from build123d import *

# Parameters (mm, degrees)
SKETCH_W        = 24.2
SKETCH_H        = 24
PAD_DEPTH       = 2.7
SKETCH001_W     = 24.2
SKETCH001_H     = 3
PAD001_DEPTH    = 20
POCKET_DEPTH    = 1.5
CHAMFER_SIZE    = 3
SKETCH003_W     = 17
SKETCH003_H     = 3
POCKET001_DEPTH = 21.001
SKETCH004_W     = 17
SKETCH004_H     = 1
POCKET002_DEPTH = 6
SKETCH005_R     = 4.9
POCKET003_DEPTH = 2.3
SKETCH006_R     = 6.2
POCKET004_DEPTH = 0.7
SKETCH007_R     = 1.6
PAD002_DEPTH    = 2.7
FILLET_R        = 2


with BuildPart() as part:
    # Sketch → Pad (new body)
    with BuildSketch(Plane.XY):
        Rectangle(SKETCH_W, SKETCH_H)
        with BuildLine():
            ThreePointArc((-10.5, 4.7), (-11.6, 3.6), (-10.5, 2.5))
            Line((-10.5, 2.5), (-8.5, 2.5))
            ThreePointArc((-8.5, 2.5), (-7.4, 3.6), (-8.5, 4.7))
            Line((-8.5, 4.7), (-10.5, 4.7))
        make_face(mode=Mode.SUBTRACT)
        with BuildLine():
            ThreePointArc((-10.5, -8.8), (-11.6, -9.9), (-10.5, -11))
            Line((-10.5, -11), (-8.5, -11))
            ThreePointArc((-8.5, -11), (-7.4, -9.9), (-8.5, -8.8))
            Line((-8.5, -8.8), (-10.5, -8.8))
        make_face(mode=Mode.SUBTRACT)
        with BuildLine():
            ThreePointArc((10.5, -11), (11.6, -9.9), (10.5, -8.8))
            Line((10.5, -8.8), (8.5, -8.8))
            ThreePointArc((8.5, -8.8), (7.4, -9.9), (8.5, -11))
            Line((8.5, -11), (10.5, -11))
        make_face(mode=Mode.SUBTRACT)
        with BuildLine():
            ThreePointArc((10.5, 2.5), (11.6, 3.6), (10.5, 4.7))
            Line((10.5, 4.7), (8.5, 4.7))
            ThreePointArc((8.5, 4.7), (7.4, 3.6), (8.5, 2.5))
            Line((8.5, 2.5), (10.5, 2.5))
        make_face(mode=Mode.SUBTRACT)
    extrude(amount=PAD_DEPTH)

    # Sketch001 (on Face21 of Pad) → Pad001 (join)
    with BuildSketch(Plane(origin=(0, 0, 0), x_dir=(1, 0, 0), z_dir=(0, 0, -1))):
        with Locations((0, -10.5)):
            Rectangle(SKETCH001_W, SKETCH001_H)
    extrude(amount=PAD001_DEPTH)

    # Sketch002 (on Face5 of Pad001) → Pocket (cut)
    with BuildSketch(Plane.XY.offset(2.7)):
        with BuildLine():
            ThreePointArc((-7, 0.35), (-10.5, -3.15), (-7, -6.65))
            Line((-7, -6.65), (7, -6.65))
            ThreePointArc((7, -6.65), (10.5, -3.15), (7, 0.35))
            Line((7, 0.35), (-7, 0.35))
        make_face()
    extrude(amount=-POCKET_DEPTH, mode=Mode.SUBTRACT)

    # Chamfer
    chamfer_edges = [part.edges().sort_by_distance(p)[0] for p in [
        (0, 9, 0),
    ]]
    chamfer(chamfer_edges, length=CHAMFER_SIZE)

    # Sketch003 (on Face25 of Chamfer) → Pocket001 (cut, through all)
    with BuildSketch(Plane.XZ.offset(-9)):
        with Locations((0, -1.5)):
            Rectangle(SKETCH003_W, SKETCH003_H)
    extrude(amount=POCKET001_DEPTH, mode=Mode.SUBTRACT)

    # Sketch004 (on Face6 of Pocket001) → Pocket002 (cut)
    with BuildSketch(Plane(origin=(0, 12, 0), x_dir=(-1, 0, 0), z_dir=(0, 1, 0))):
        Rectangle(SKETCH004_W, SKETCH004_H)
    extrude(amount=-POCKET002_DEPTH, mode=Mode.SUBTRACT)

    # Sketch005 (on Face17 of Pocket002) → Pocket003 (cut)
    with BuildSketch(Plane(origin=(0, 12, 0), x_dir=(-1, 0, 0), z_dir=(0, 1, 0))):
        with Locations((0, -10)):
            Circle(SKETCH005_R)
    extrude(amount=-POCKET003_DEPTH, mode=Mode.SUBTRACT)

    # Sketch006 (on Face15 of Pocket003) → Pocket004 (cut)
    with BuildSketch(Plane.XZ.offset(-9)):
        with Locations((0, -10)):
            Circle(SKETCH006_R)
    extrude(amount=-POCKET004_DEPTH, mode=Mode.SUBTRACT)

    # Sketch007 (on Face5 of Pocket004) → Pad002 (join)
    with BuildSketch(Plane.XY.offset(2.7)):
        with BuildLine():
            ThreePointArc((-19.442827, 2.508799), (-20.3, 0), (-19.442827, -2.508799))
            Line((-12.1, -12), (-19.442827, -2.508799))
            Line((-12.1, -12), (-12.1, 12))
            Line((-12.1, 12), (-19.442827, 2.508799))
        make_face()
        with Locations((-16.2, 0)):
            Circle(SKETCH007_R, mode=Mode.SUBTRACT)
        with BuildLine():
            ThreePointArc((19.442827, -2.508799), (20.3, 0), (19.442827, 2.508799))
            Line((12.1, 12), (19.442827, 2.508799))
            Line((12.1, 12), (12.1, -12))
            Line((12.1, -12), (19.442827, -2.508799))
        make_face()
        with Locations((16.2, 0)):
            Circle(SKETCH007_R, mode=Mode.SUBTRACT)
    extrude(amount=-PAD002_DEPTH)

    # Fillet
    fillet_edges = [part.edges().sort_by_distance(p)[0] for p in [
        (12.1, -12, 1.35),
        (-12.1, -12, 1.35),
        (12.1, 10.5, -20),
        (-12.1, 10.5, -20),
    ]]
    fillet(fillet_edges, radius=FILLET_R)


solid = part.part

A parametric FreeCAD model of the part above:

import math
import FreeCAD as App
import Part
import Sketcher

V = App.Vector
Q = App.Units.Quantity


def edges_at(feature, points):
    """Names of the edges that pass closest to the given points."""
    edges = feature.Shape.Edges
    near = lambda p: min(range(len(edges)), key=lambda i: edges[i].distToShape(Part.Vertex(*p))[0])
    return sorted({f"Edge{near(p) + 1}" for p in points})

doc = App.newDocument("Part")
body = doc.addObject("PartDesign::Body", "Body")

# Sketch on XY plane
sketch1 = body.newObject("Sketcher::SketchObject", "Sketch")
sketch1.AttachmentSupport = (doc.getObject("XY_Plane"), [""])
sketch1.MapMode = "FlatFace"
sketch1.addGeometry([
    Part.LineSegment(V(-12.1, 12, 0), V(-12.1, -12, 0)),  # 0
    Part.LineSegment(V(-12.1, -12, 0), V(12.1, -12, 0)),  # 1
    Part.LineSegment(V(12.1, -12, 0), V(12.1, 12, 0)),  # 2
    Part.LineSegment(V(12.1, 12, 0), V(-12.1, 12, 0)),  # 3
    Part.ArcOfCircle(Part.Circle(V(-10.5, -9.9, 0), V(0, 0, 1), 1.1), math.radians(90), math.radians(270)),  # 4
    Part.LineSegment(V(-10.5, -8.8, 0), V(-8.5, -8.8, 0)),  # 5
    Part.ArcOfCircle(Part.Circle(V(-8.5, -9.9, 0), V(0, 0, 1), 1.1), math.radians(-90), math.radians(90)),  # 6
    Part.LineSegment(V(-8.5, -11, 0), V(-10.5, -11, 0)),  # 7
    Part.ArcOfCircle(Part.Circle(V(10.5, -9.9, 0), V(0, 0, 1), 1.1), math.radians(-90), math.radians(90)),  # 8
    Part.LineSegment(V(10.5, -11, 0), V(8.5, -11, 0)),  # 9
    Part.ArcOfCircle(Part.Circle(V(8.5, -9.9, 0), V(0, 0, 1), 1.1), math.radians(90), math.radians(270)),  # 10
    Part.LineSegment(V(8.5, -8.8, 0), V(10.5, -8.8, 0)),  # 11
    Part.ArcOfCircle(Part.Circle(V(-10.5, 3.6, 0), V(0, 0, 1), 1.1), math.radians(90), math.radians(270)),  # 12
    Part.LineSegment(V(-10.5, 4.7, 0), V(-8.5, 4.7, 0)),  # 13
    Part.ArcOfCircle(Part.Circle(V(-8.5, 3.6, 0), V(0, 0, 1), 1.1), math.radians(-90), math.radians(90)),  # 14
    Part.LineSegment(V(-8.5, 2.5, 0), V(-10.5, 2.5, 0)),  # 15
    Part.ArcOfCircle(Part.Circle(V(10.5, 3.6, 0), V(0, 0, 1), 1.1), math.radians(-90), math.radians(90)),  # 16
    Part.LineSegment(V(10.5, 2.5, 0), V(8.5, 2.5, 0)),  # 17
    Part.ArcOfCircle(Part.Circle(V(8.5, 3.6, 0), V(0, 0, 1), 1.1), math.radians(90), math.radians(270)),  # 18
    Part.LineSegment(V(8.5, 4.7, 0), V(10.5, 4.7, 0)),  # 19
], False)
sketch1.addConstraint([
    Sketcher.Constraint("Coincident", 0, 2, 1, 1),
    Sketcher.Constraint("Coincident", 1, 2, 2, 1),
    Sketcher.Constraint("Coincident", 2, 2, 3, 1),
    Sketcher.Constraint("Coincident", 3, 2, 0, 1),
    Sketcher.Constraint("Tangent", 4, 1, 5, 1),
    Sketcher.Constraint("Tangent", 5, 2, 6, 2),
    Sketcher.Constraint("Tangent", 6, 1, 7, 1),
    Sketcher.Constraint("Tangent", 7, 2, 4, 2),
    Sketcher.Constraint("Tangent", 8, 1, 9, 1),
    Sketcher.Constraint("Tangent", 9, 2, 10, 2),
    Sketcher.Constraint("Tangent", 10, 1, 11, 1),
    Sketcher.Constraint("Tangent", 11, 2, 8, 2),
    Sketcher.Constraint("Tangent", 12, 1, 13, 1),
    Sketcher.Constraint("Tangent", 13, 2, 14, 2),
    Sketcher.Constraint("Tangent", 14, 1, 15, 1),
    Sketcher.Constraint("Tangent", 15, 2, 12, 2),
    Sketcher.Constraint("Tangent", 16, 1, 17, 1),
    Sketcher.Constraint("Tangent", 17, 2, 18, 2),
    Sketcher.Constraint("Tangent", 18, 1, 19, 1),
    Sketcher.Constraint("Tangent", 19, 2, 16, 2),
    Sketcher.Constraint("Vertical", 0),
    Sketcher.Constraint("Horizontal", 1),
    Sketcher.Constraint("Vertical", 2),
    Sketcher.Constraint("Horizontal", 3),
    Sketcher.Constraint("Horizontal", 5),
    Sketcher.Constraint("Horizontal", 7),
    Sketcher.Constraint("Horizontal", 9),
    Sketcher.Constraint("Horizontal", 11),
    Sketcher.Constraint("Horizontal", 13),
    Sketcher.Constraint("Horizontal", 15),
    Sketcher.Constraint("Horizontal", 17),
    Sketcher.Constraint("Horizontal", 19),
    Sketcher.Constraint("Equal", 6, 8),
    Sketcher.Constraint("Equal", 10, 12),
    Sketcher.Constraint("Equal", 14, 16),
    Sketcher.Constraint("Symmetric", 0, 2, 2, 2, -1, 1),
    Sketcher.Constraint("Symmetric", 4, 3, 8, 3, -2),
    Sketcher.Constraint("Symmetric", 12, 3, 16, 3, -2),
    Sketcher.Constraint("Vertical", 4, 3, 12, 3),
    Sketcher.Constraint("Vertical", 6, 3, 14, 3),
    Sketcher.Constraint("Vertical", 10, 3, 18, 3),
    Sketcher.Constraint("Equal", 7, 9),
    Sketcher.Constraint("Radius", 4, Q("1.1 mm")),
    Sketcher.Constraint("DistanceX", 5, 1, 5, 2, Q("2 mm")),
    Sketcher.Constraint("DistanceY", 0, 2, 0, 1, Q("24 mm")),
    Sketcher.Constraint("DistanceX", 1, 1, 1, 2, Q("24.2 mm")),
    Sketcher.Constraint("DistanceY", 6, 1, -1, 1, Q("11 mm")),
    Sketcher.Constraint("DistanceX", 6, 3, 8, 3, Q("19 mm")),
    Sketcher.Constraint("DistanceY", -1, 1, 12, 3, Q("3.6 mm")),
])
pad1 = body.newObject("PartDesign::Pad", "Pad")
pad1.Profile = sketch1
pad1.Length = 2.7

# Sketch on XY plane
sketch2 = body.newObject("Sketcher::SketchObject", "Sketch001")
sketch2.AttachmentSupport = (doc.getObject("XY_Plane"), [""])
sketch2.MapMode = "FlatFace"
sketch2.addGeometry([
    Part.LineSegment(V(-12.1, 9, 0), V(-12.1, 12, 0)),
    Part.LineSegment(V(-12.1, 12, 0), V(12.1, 12, 0)),
    Part.LineSegment(V(12.1, 12, 0), V(12.1, 9, 0)),
    Part.LineSegment(V(12.1, 9, 0), V(-12.1, 9, 0)),
], False)
sketch2.addConstraint([
    Sketcher.Constraint("Coincident", 0, 2, 1, 1),
    Sketcher.Constraint("Coincident", 1, 2, 2, 1),
    Sketcher.Constraint("Coincident", 2, 2, 3, 1),
    Sketcher.Constraint("Coincident", 3, 2, 0, 1),
    Sketcher.Constraint("Vertical", 0),
    Sketcher.Constraint("Horizontal", 1),
    Sketcher.Constraint("Vertical", 2),
    Sketcher.Constraint("Horizontal", 3),
    Sketcher.Constraint("DistanceY", 0, 1, 0, 2, Q("3 mm")),
    Sketcher.Constraint("DistanceX", 1, 1, 1, 2, Q("24.2 mm")),
    Sketcher.Constraint("DistanceY", -1, 1, 0, 2, Q("12 mm")),
    Sketcher.Constraint("DistanceX", 0, 2, -1, 1, Q("12.1 mm")),
])
pad2 = body.newObject("PartDesign::Pad", "Pad001")
pad2.Profile = sketch2
pad2.Length = 20
pad2.Reversed = True

# Sketch on XY plane
sketch3 = body.newObject("Sketcher::SketchObject", "Sketch002")
sketch3.AttachmentSupport = (doc.getObject("XY_Plane"), [""])
sketch3.MapMode = "FlatFace"
sketch3.AttachmentOffset = App.Placement(V(0, 0, 2.7), App.Rotation())
sketch3.addGeometry([
    Part.ArcOfCircle(Part.Circle(V(-7, -3.1, 0), V(0, 0, 1), 3.5), math.radians(90), math.radians(270)),
    Part.LineSegment(V(-7, -6.7, 0), V(7, -6.7, 0)),
    Part.ArcOfCircle(Part.Circle(V(7, -3.1, 0), V(0, 0, 1), 3.5), math.radians(-90), math.radians(90)),
    Part.LineSegment(V(7, 0.3, 0), V(-7, 0.3, 0)),
], False)
sketch3.addConstraint([
    Sketcher.Constraint("Tangent", 0, 2, 1, 1),
    Sketcher.Constraint("Tangent", 1, 2, 2, 1),
    Sketcher.Constraint("Tangent", 2, 2, 3, 1),
    Sketcher.Constraint("Tangent", 3, 2, 0, 1),
    Sketcher.Constraint("Horizontal", 1),
    Sketcher.Constraint("Horizontal", 3),
    Sketcher.Constraint("Radius", 0, Q("3.5 mm")),
    Sketcher.Constraint("DistanceX", 1, 1, 1, 2, Q("14 mm")),
    Sketcher.Constraint("DistanceX", 0, 3, -1, 1, Q("7 mm")),
    Sketcher.Constraint("DistanceY", 0, 3, -1, 1, Q("3.15 mm")),
])
pocket1 = body.newObject("PartDesign::Pocket", "Pocket")
pocket1.Profile = sketch3
pocket1.Length = 1.5
doc.recompute()

chamfer = body.newObject("PartDesign::Chamfer", "Chamfer")
chamfer.Base = (pocket1, edges_at(pocket1, [(0, 9, 0)]))
chamfer.Size = 3

# Sketch on XZ plane
sketch4 = body.newObject("Sketcher::SketchObject", "Sketch003")
sketch4.AttachmentSupport = (doc.getObject("XZ_Plane"), [""])
sketch4.MapMode = "FlatFace"
sketch4.AttachmentOffset = App.Placement(V(0, 0, -9), App.Rotation())
sketch4.addGeometry([
    Part.LineSegment(V(-8.5, 0, 0), V(-8.5, -3, 0)),
    Part.LineSegment(V(-8.5, -3, 0), V(8.5, -3, 0)),
    Part.LineSegment(V(8.5, -3, 0), V(8.5, 0, 0)),
    Part.LineSegment(V(8.5, 0, 0), V(-8.5, 0, 0)),
], False)
sketch4.addConstraint([
    Sketcher.Constraint("Coincident", 0, 2, 1, 1),
    Sketcher.Constraint("Coincident", 1, 2, 2, 1),
    Sketcher.Constraint("Coincident", 2, 2, 3, 1),
    Sketcher.Constraint("Coincident", 3, 2, 0, 1),
    Sketcher.Constraint("Vertical", 0),
    Sketcher.Constraint("Horizontal", 1),
    Sketcher.Constraint("Vertical", 2),
    Sketcher.Constraint("Horizontal", 3),
    Sketcher.Constraint("Symmetric", 2, 2, 3, 2, -1, 1),
    Sketcher.Constraint("DistanceX", 1, 1, 1, 2, Q("17 mm")),
    Sketcher.Constraint("DistanceY", 0, 2, 0, 1, Q("3 mm")),
])
pocket2 = body.newObject("PartDesign::Pocket", "Pocket001")
pocket2.Profile = sketch4
pocket2.Type = "ThroughAll"
pocket2.Reversed = True

# Sketch on XZ plane
sketch5 = body.newObject("Sketcher::SketchObject", "Sketch004")
sketch5.AttachmentSupport = (doc.getObject("XZ_Plane"), [""])
sketch5.MapMode = "FlatFace"
sketch5.AttachmentOffset = App.Placement(V(0, 0, -12), App.Rotation())
sketch5.addGeometry([
    Part.LineSegment(V(8.5, 0.5, 0), V(8.5, -0.5, 0)),
    Part.LineSegment(V(8.5, -0.5, 0), V(-8.5, -0.5, 0)),
    Part.LineSegment(V(-8.5, -0.5, 0), V(-8.5, 0.5, 0)),
    Part.LineSegment(V(-8.5, 0.5, 0), V(8.5, 0.5, 0)),
], False)
sketch5.addConstraint([
    Sketcher.Constraint("Coincident", 0, 2, 1, 1),
    Sketcher.Constraint("Coincident", 1, 2, 2, 1),
    Sketcher.Constraint("Coincident", 2, 2, 3, 1),
    Sketcher.Constraint("Coincident", 3, 2, 0, 1),
    Sketcher.Constraint("Vertical", 0),
    Sketcher.Constraint("Horizontal", 1),
    Sketcher.Constraint("Vertical", 2),
    Sketcher.Constraint("Horizontal", 3),
    Sketcher.Constraint("Symmetric", 0, 2, 2, 2, -1, 1),
    Sketcher.Constraint("DistanceX", 1, 2, 1, 1, Q("17 mm")),
    Sketcher.Constraint("DistanceY", 0, 2, 0, 1, Q("1 mm")),
])
pocket3 = body.newObject("PartDesign::Pocket", "Pocket002")
pocket3.Profile = sketch5
pocket3.Length = 6
pocket3.Reversed = True

# Sketch on XZ plane
sketch6 = body.newObject("Sketcher::SketchObject", "Sketch005")
sketch6.AttachmentSupport = (doc.getObject("XZ_Plane"), [""])
sketch6.MapMode = "FlatFace"
sketch6.AttachmentOffset = App.Placement(V(0, 0, -12), App.Rotation())
sketch6.addGeometry(Part.Circle(V(0, -10, 0), V(0, 0, 1), 4.9), False)
sketch6.addConstraint([
    Sketcher.Constraint("PointOnObject", 0, 3, -2),
    Sketcher.Constraint("Diameter", 0, Q("9.8 mm")),
    Sketcher.Constraint("DistanceY", 0, 3, -1, 1, Q("10 mm")),
])
pocket4 = body.newObject("PartDesign::Pocket", "Pocket003")
pocket4.Profile = sketch6
pocket4.Length = 2.3
pocket4.Reversed = True

# Sketch on XZ plane
sketch7 = body.newObject("Sketcher::SketchObject", "Sketch006")
sketch7.AttachmentSupport = (doc.getObject("XZ_Plane"), [""])
sketch7.MapMode = "FlatFace"
sketch7.AttachmentOffset = App.Placement(V(0, 0, -9), App.Rotation())
sketch7.addGeometry(Part.Circle(V(0, -10, 0), V(0, 0, 1), 6), False)
sketch7.addConstraint([
    Sketcher.Constraint("PointOnObject", 0, 3, -2),
    Sketcher.Constraint("Diameter", 0, Q("12.4 mm")),
    Sketcher.Constraint("DistanceY", 0, 3, -1, 1, Q("10 mm")),
])
pocket5 = body.newObject("PartDesign::Pocket", "Pocket004")
pocket5.Profile = sketch7
pocket5.Length = 0.7

# Sketch on XY plane
sketch8 = body.newObject("Sketcher::SketchObject", "Sketch007")
sketch8.AttachmentSupport = (doc.getObject("XY_Plane"), [""])
sketch8.MapMode = "FlatFace"
sketch8.AttachmentOffset = App.Placement(V(0, 0, 2.7), App.Rotation())
sketch8.addGeometry([
    Part.ArcOfCircle(Part.Circle(V(-16.2, 0, 0), V(0, 0, 1), 4.1), math.radians(142), math.radians(218)),  # 0
    Part.LineSegment(V(-19.4, -2.5, 0), V(-12.1, -12, 0)),  # 1
    Part.LineSegment(V(-12.1, -12, 0), V(-12.1, 12, 0)),  # 2
    Part.LineSegment(V(-12.1, 12, 0), V(-19.4, 2.5, 0)),  # 3
    Part.Circle(V(-16.2, 0, 0), V(0, 0, 1), 1.6),  # 4
    Part.ArcOfCircle(Part.Circle(V(16.2, 0, 0), V(0, 0, 1), 4.1), math.radians(-38), math.radians(38)),  # 5
    Part.LineSegment(V(19.4, 2.5, 0), V(12.1, 12, 0)),  # 6
    Part.LineSegment(V(12.1, 12, 0), V(12.1, -12, 0)),  # 7
    Part.LineSegment(V(12.1, -12, 0), V(19.4, -2.5, 0)),  # 8
    Part.Circle(V(16.2, 0, 0), V(0, 0, 1), 1.6),  # 9
], False)
sketch8.addConstraint([
    Sketcher.Constraint("Tangent", 0, 2, 1, 1),
    Sketcher.Constraint("Coincident", 1, 2, 2, 1),
    Sketcher.Constraint("Coincident", 2, 2, 3, 1),
    Sketcher.Constraint("Tangent", 3, 2, 0, 1),
    Sketcher.Constraint("Tangent", 5, 2, 6, 1),
    Sketcher.Constraint("Coincident", 6, 2, 7, 1),
    Sketcher.Constraint("Coincident", 7, 2, 8, 1),
    Sketcher.Constraint("Tangent", 8, 2, 5, 1),
    Sketcher.Constraint("Vertical", 2),
    Sketcher.Constraint("Vertical", 7),
    Sketcher.Constraint("Coincident", 4, 3, 0, 3),
    Sketcher.Constraint("Coincident", 9, 3, 5, 3),
    Sketcher.Constraint("Equal", 0, 5),
    Sketcher.Constraint("Equal", 4, 9),
    Sketcher.Constraint("Symmetric", 0, 3, 5, 3, -1, 1),
    Sketcher.Constraint("Symmetric", 1, 2, 6, 2, -1, 1),
    Sketcher.Constraint("Symmetric", 3, 2, 5, 2, -2),
    Sketcher.Constraint("Parallel", 3, 8),
    Sketcher.Constraint("Diameter", 4, Q("3.2 mm")),
    Sketcher.Constraint("Radius", 0, Q("4.1 mm")),
    Sketcher.Constraint("DistanceY", 2, 1, 2, 2, Q("24 mm")),
    Sketcher.Constraint("Distance", 1, Q("12 mm")),
    Sketcher.Constraint("DistanceX", 0, 3, -1, 1, Q("16.2 mm")),
])
pad3 = body.newObject("PartDesign::Pad", "Pad002")
pad3.Profile = sketch8
pad3.Length = 2.7
pad3.Reversed = True
doc.recompute()

fillet = body.newObject("PartDesign::Fillet", "Fillet")
fillet.Base = (pad3, edges_at(pad3, [
    (12.1, -12, 1.35),
    (-12.1, -12, 1.35),
    (12.1, 10.5, -20),
    (-12.1, 10.5, -20),
]))
fillet.Radius = 2

doc.recompute()
